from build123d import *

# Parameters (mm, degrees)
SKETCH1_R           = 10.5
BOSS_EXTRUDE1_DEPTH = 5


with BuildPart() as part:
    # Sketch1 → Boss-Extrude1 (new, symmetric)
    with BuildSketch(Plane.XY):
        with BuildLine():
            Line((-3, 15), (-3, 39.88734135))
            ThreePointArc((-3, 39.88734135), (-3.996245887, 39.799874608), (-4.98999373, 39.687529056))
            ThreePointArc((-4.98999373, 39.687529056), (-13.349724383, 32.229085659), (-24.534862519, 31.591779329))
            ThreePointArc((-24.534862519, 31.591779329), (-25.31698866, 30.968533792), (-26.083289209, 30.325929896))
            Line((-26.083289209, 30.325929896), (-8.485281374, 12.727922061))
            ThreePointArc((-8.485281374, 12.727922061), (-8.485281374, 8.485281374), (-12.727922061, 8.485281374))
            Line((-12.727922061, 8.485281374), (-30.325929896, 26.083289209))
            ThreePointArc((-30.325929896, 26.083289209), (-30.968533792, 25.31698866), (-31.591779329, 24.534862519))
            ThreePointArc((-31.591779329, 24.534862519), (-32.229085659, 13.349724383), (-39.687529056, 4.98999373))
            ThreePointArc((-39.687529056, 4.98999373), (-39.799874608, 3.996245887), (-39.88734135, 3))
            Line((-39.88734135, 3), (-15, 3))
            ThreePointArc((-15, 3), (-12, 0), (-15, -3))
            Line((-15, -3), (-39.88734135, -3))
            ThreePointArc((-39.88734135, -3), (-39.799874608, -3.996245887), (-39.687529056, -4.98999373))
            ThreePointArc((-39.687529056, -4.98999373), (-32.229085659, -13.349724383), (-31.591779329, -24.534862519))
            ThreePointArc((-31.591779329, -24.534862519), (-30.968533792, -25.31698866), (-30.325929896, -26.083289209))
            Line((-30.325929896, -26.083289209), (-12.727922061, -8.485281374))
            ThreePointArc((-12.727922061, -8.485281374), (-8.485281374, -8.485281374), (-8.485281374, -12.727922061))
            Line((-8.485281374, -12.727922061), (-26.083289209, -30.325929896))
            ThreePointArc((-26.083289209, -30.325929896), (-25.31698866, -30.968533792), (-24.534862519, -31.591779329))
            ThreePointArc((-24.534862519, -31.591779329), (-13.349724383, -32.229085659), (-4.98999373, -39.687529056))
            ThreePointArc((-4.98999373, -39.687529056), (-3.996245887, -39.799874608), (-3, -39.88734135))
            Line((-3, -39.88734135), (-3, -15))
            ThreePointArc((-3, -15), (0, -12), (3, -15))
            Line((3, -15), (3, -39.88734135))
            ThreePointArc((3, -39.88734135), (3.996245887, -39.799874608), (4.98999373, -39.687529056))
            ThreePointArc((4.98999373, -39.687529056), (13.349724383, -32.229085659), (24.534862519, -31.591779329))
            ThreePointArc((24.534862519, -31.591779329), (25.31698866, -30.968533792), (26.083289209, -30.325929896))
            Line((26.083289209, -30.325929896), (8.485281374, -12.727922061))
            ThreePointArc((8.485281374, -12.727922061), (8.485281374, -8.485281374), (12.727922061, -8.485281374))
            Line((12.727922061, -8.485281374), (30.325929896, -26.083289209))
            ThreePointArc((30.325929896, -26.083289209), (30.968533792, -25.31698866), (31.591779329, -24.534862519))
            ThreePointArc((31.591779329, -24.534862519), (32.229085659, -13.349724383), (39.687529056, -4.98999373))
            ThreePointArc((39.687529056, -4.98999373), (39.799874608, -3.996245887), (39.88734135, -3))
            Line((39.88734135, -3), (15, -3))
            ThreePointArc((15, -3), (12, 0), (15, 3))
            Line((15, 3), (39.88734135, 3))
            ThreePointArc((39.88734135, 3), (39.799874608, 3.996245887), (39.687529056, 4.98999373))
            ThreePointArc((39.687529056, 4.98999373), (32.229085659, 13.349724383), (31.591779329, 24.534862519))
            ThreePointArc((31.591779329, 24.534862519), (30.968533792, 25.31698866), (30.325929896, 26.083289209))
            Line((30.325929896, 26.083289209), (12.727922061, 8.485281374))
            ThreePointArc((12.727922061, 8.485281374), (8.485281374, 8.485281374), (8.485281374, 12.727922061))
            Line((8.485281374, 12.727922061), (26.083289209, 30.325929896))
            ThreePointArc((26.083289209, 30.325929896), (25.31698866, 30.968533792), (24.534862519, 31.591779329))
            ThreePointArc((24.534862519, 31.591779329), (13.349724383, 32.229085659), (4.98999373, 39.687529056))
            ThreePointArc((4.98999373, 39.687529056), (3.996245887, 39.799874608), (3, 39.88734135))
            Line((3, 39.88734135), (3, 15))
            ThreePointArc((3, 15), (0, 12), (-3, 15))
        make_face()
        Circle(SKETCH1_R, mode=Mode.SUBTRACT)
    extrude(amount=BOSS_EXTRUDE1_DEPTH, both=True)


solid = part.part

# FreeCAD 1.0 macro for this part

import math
import FreeCAD as App
import Part
import Sketcher

doc = App.newDocument("Part")
params = doc.addObject("Spreadsheet::Sheet", "Params")
for row, (alias, value) in enumerate([
    ("sketch1_diameter", "21 mm"),
    ("sketch1_radius", "39.999999 mm"),
    ("sketch1_radius2", "17 mm"),
    ("sketch1_radius3", "3 mm"),
    ("pad1_length", "10 mm"),
], start=1):
    params.set(f"A{row}", alias)
    params.set(f"B{row}", "=" + value)
    params.setAlias(f"B{row}", alias)

body = doc.addObject("PartDesign::Body", "Body")

# Sketch on XY plane
sketch1 = body.newObject("Sketcher::SketchObject", "Sketch")
sketch1.AttachmentSupport = (doc.getObject("XY_Plane"), [""])
sketch1.MapMode = "FlatFace"
sketch1.addGeometry([
    Part.LineSegment(App.Vector(-3, 15, 0), App.Vector(-3, 39.9, 0)),  # 0
    Part.ArcOfCircle(Part.Circle(App.Vector(0, 0, 0), App.Vector(0, 0, 1), 40), math.radians(94.3), math.radians(97.17)),  # 1
    Part.ArcOfCircle(Part.Circle(App.Vector(-19.9, 47.9, 0), App.Vector(0, 0, 1), 17), math.radians(-106), math.radians(-29)),  # 2
    Part.ArcOfCircle(Part.Circle(App.Vector(0, 0, 0), App.Vector(0, 0, 1), 40), math.radians(127.83), math.radians(130.7)),  # 3
    Part.LineSegment(App.Vector(-26.1, 30.3, 0), App.Vector(-8.5, 12.7, 0)),  # 4
    Part.ArcOfCircle(Part.Circle(App.Vector(-10.6, 10.6, 0), App.Vector(0, 0, 1), 3), math.radians(-135), math.radians(45)),  # 5
    Part.LineSegment(App.Vector(-12.7, 8.5, 0), App.Vector(-30.3, 26.1, 0)),  # 6
    Part.ArcOfCircle(Part.Circle(App.Vector(0, 0, 0), App.Vector(0, 0, 1), 40), math.radians(139.3), math.radians(142.17)),  # 7
    Part.ArcOfCircle(Part.Circle(App.Vector(-47.9, 19.9, 0), App.Vector(0, 0, 1), 17), math.radians(-61), math.radians(16)),  # 8
    Part.ArcOfCircle(Part.Circle(App.Vector(0, 0, 0), App.Vector(0, 0, 1), 40), math.radians(172.83), math.radians(175.7)),  # 9
    Part.LineSegment(App.Vector(-39.9, 3, 0), App.Vector(-15, 3, 0)),  # 10
    Part.ArcOfCircle(Part.Circle(App.Vector(-15, 0, 0), App.Vector(0, 0, 1), 3), math.radians(-90), math.radians(90)),  # 11
    Part.LineSegment(App.Vector(-15, -3, 0), App.Vector(-39.9, -3, 0)),  # 12
    Part.ArcOfCircle(Part.Circle(App.Vector(0, 0, 0), App.Vector(0, 0, 1), 40), math.radians(-175.7), math.radians(-172.83)),  # 13
    Part.ArcOfCircle(Part.Circle(App.Vector(-47.9, -19.9, 0), App.Vector(0, 0, 1), 17), math.radians(-16), math.radians(61)),  # 14
    Part.ArcOfCircle(Part.Circle(App.Vector(0, 0, 0), App.Vector(0, 0, 1), 40), math.radians(-142.17), math.radians(-139.3)),  # 15
    Part.LineSegment(App.Vector(-30.3, -26.1, 0), App.Vector(-12.7, -8.5, 0)),  # 16
    Part.ArcOfCircle(Part.Circle(App.Vector(-10.6, -10.6, 0), App.Vector(0, 0, 1), 3), math.radians(-45), math.radians(135)),  # 17
    Part.LineSegment(App.Vector(-8.5, -12.7, 0), App.Vector(-26.1, -30.3, 0)),  # 18
    Part.ArcOfCircle(Part.Circle(App.Vector(0, 0, 0), App.Vector(0, 0, 1), 40), math.radians(-130.7), math.radians(-127.83)),  # 19
    Part.ArcOfCircle(Part.Circle(App.Vector(-19.9, -47.9, 0), App.Vector(0, 0, 1), 17), math.radians(29), math.radians(106)),  # 20
    Part.ArcOfCircle(Part.Circle(App.Vector(0, 0, 0), App.Vector(0, 0, 1), 40), math.radians(-97.17), math.radians(-94.3)),  # 21
    Part.LineSegment(App.Vector(-3, -39.9, 0), App.Vector(-3, -15, 0)),  # 22
    Part.ArcOfCircle(Part.Circle(App.Vector(0, -15, 0), App.Vector(0, 0, 1), 3), math.radians(0), math.radians(180)),  # 23
    Part.LineSegment(App.Vector(3, -15, 0), App.Vector(3, -39.9, 0)),  # 24
    Part.ArcOfCircle(Part.Circle(App.Vector(0, 0, 0), App.Vector(0, 0, 1), 40), math.radians(-85.7), math.radians(-82.83)),  # 25
    Part.ArcOfCircle(Part.Circle(App.Vector(19.9, -47.9, 0), App.Vector(0, 0, 1), 17), math.radians(74), math.radians(151)),  # 26
    Part.ArcOfCircle(Part.Circle(App.Vector(0, 0, 0), App.Vector(0, 0, 1), 40), math.radians(-52.17), math.radians(-49.3)),  # 27
    Part.LineSegment(App.Vector(26.1, -30.3, 0), App.Vector(8.5, -12.7, 0)),  # 28
    Part.ArcOfCircle(Part.Circle(App.Vector(10.6, -10.6, 0), App.Vector(0, 0, 1), 3), math.radians(45), math.radians(225)),  # 29
    Part.LineSegment(App.Vector(12.7, -8.5, 0), App.Vector(30.3, -26.1, 0)),  # 30
    Part.ArcOfCircle(Part.Circle(App.Vector(0, 0, 0), App.Vector(0, 0, 1), 40), math.radians(-40.7), math.radians(-37.83)),  # 31
    Part.ArcOfCircle(Part.Circle(App.Vector(47.9, -19.9, 0), App.Vector(0, 0, 1), 17), math.radians(119), math.radians(196)),  # 32
    Part.ArcOfCircle(Part.Circle(App.Vector(0, 0, 0), App.Vector(0, 0, 1), 40), math.radians(-7.17), math.radians(-4.3)),  # 33
    Part.LineSegment(App.Vector(39.9, -3, 0), App.Vector(15, -3, 0)),  # 34
    Part.ArcOfCircle(Part.Circle(App.Vector(15, 0, 0), App.Vector(0, 0, 1), 3), math.radians(90), math.radians(270)),  # 35
    Part.LineSegment(App.Vector(15, 3, 0), App.Vector(39.9, 3, 0)),  # 36
    Part.ArcOfCircle(Part.Circle(App.Vector(0, 0, 0), App.Vector(0, 0, 1), 40), math.radians(4.3), math.radians(7.17)),  # 37
    Part.ArcOfCircle(Part.Circle(App.Vector(47.9, 19.9, 0), App.Vector(0, 0, 1), 17), math.radians(164), math.radians(241)),  # 38
    Part.ArcOfCircle(Part.Circle(App.Vector(0, 0, 0), App.Vector(0, 0, 1), 40), math.radians(37.83), math.radians(40.7)),  # 39
    Part.LineSegment(App.Vector(30.3, 26.1, 0), App.Vector(12.7, 8.5, 0)),  # 40
    Part.ArcOfCircle(Part.Circle(App.Vector(10.6, 10.6, 0), App.Vector(0, 0, 1), 3), math.radians(135), math.radians(315)),  # 41
    Part.LineSegment(App.Vector(8.5, 12.7, 0), App.Vector(26.1, 30.3, 0)),  # 42
    Part.ArcOfCircle(Part.Circle(App.Vector(0, 0, 0), App.Vector(0, 0, 1), 40), math.radians(49.3), math.radians(52.17)),  # 43
    Part.ArcOfCircle(Part.Circle(App.Vector(19.9, 47.9, 0), App.Vector(0, 0, 1), 17), math.radians(-151), math.radians(-74)),  # 44
    Part.ArcOfCircle(Part.Circle(App.Vector(0, 0, 0), App.Vector(0, 0, 1), 40), math.radians(82.83), math.radians(85.7)),  # 45
    Part.LineSegment(App.Vector(3, 39.9, 0), App.Vector(3, 15, 0)),  # 46
    Part.ArcOfCircle(Part.Circle(App.Vector(0, 15, 0), App.Vector(0, 0, 1), 3), math.radians(180), math.radians(360)),  # 47
    Part.Circle(App.Vector(0, 0, 0), App.Vector(0, 0, 1), 10.5),  # 48
], False)
sketch1.addConstraint([
    Sketcher.Constraint("Coincident", 0, 2, 1, 1),
    Sketcher.Constraint("Coincident", 1, 2, 2, 2),
    Sketcher.Constraint("Coincident", 2, 1, 3, 1),
    Sketcher.Constraint("Coincident", 3, 2, 4, 1),
    Sketcher.Constraint("Tangent", 4, 2, 5, 2),
    Sketcher.Constraint("Tangent", 5, 1, 6, 1),
    Sketcher.Constraint("Coincident", 6, 2, 7, 1),
    Sketcher.Constraint("Coincident", 7, 2, 8, 2),
    Sketcher.Constraint("Coincident", 8, 1, 9, 1),
    Sketcher.Constraint("Coincident", 9, 2, 10, 1),
    Sketcher.Constraint("Tangent", 10, 2, 11, 2),
    Sketcher.Constraint("Tangent", 11, 1, 12, 1),
    Sketcher.Constraint("Coincident", 12, 2, 13, 1),
    Sketcher.Constraint("Coincident", 13, 2, 14, 2),
    Sketcher.Constraint("Coincident", 14, 1, 15, 1),
    Sketcher.Constraint("Coincident", 15, 2, 16, 1),
    Sketcher.Constraint("Tangent", 16, 2, 17, 2),
    Sketcher.Constraint("Tangent", 17, 1, 18, 1),
    Sketcher.Constraint("Coincident", 18, 2, 19, 1),
    Sketcher.Constraint("Coincident", 19, 2, 20, 2),
    Sketcher.Constraint("Coincident", 20, 1, 21, 1),
    Sketcher.Constraint("Coincident", 21, 2, 22, 1),
    Sketcher.Constraint("Tangent", 22, 2, 23, 2),
    Sketcher.Constraint("Tangent", 23, 1, 24, 1),
    Sketcher.Constraint("Coincident", 24, 2, 25, 1),
    Sketcher.Constraint("Coincident", 25, 2, 26, 2),
    Sketcher.Constraint("Coincident", 26, 1, 27, 1),
    Sketcher.Constraint("Coincident", 27, 2, 28, 1),
    Sketcher.Constraint("Tangent", 28, 2, 29, 2),
    Sketcher.Constraint("Tangent", 29, 1, 30, 1),
    Sketcher.Constraint("Coincident", 30, 2, 31, 1),
    Sketcher.Constraint("Coincident", 31, 2, 32, 2),
    Sketcher.Constraint("Coincident", 32, 1, 33, 1),
    Sketcher.Constraint("Coincident", 33, 2, 34, 1),
    Sketcher.Constraint("Tangent", 34, 2, 35, 2),
    Sketcher.Constraint("Tangent", 35, 1, 36, 1),
    Sketcher.Constraint("Coincident", 36, 2, 37, 1),
    Sketcher.Constraint("Coincident", 37, 2, 38, 2),
    Sketcher.Constraint("Coincident", 38, 1, 39, 1),
    Sketcher.Constraint("Coincident", 39, 2, 40, 1),
    Sketcher.Constraint("Tangent", 40, 2, 41, 2),
    Sketcher.Constraint("Tangent", 41, 1, 42, 1),
    Sketcher.Constraint("Coincident", 42, 2, 43, 1),
    Sketcher.Constraint("Coincident", 43, 2, 44, 2),
    Sketcher.Constraint("Coincident", 44, 1, 45, 1),
    Sketcher.Constraint("Coincident", 45, 2, 46, 1),
    Sketcher.Constraint("Tangent", 46, 2, 47, 2),
    Sketcher.Constraint("Tangent", 47, 1, 0, 1),
    Sketcher.Constraint("Vertical", 0),
    Sketcher.Constraint("Horizontal", 10),
    Sketcher.Constraint("Horizontal", 12),
    Sketcher.Constraint("Vertical", 22),
    Sketcher.Constraint("Vertical", 24),
    Sketcher.Constraint("Horizontal", 34),
    Sketcher.Constraint("Horizontal", 36),
    Sketcher.Constraint("Vertical", 46),
    Sketcher.Constraint("Coincident", 1, 3, -1, 1),
    Sketcher.Constraint("Coincident", 3, 3, -1, 1),
    Sketcher.Constraint("Coincident", 7, 3, -1, 1),
    Sketcher.Constraint("Coincident", 9, 3, -1, 1),
    Sketcher.Constraint("Coincident", 13, 3, -1, 1),
    Sketcher.Constraint("Coincident", 15, 3, -1, 1),
    Sketcher.Constraint("Coincident", 19, 3, -1, 1),
    Sketcher.Constraint("Coincident", 21, 3, -1, 1),
    Sketcher.Constraint("Coincident", 25, 3, -1, 1),
    Sketcher.Constraint("Coincident", 27, 3, -1, 1),
    Sketcher.Constraint("Coincident", 31, 3, -1, 1),
    Sketcher.Constraint("Coincident", 33, 3, -1, 1),
    Sketcher.Constraint("Coincident", 37, 3, -1, 1),
    Sketcher.Constraint("Coincident", 39, 3, -1, 1),
    Sketcher.Constraint("Coincident", 43, 3, -1, 1),
    Sketcher.Constraint("Coincident", 45, 3, -1, 1),
    Sketcher.Constraint("Coincident", 48, 3, -1, 1),
    Sketcher.Constraint("Equal", 1, 3),
    Sketcher.Constraint("Equal", 3, 7),
    Sketcher.Constraint("Equal", 2, 8),
    Sketcher.Constraint("Equal", 7, 9),
    Sketcher.Constraint("Equal", 5, 11),
    Sketcher.Constraint("Equal", 9, 13),
    Sketcher.Constraint("Equal", 8, 14),
    Sketcher.Constraint("Equal", 13, 15),
    Sketcher.Constraint("Equal", 11, 17),
    Sketcher.Constraint("Equal", 15, 19),
    Sketcher.Constraint("Equal", 14, 20),
    Sketcher.Constraint("Equal", 19, 21),
    Sketcher.Constraint("Equal", 17, 23),
    Sketcher.Constraint("Equal", 21, 25),
    Sketcher.Constraint("Equal", 20, 26),
    Sketcher.Constraint("Equal", 25, 27),
    Sketcher.Constraint("Equal", 23, 29),
    Sketcher.Constraint("Equal", 27, 31),
    Sketcher.Constraint("Equal", 26, 32),
    Sketcher.Constraint("Equal", 31, 33),
    Sketcher.Constraint("Equal", 29, 35),
    Sketcher.Constraint("Equal", 33, 37),
    Sketcher.Constraint("Equal", 32, 38),
    Sketcher.Constraint("Equal", 37, 39),
    Sketcher.Constraint("Equal", 35, 41),
    Sketcher.Constraint("Equal", 39, 43),
    Sketcher.Constraint("Equal", 38, 44),
    Sketcher.Constraint("Equal", 43, 45),
    Sketcher.Constraint("Equal", 41, 47),
    Sketcher.Constraint("Symmetric", 2, 3, 26, 3, -1, 1),
    Sketcher.Constraint("Symmetric", 5, 3, 29, 3, -1, 1),
    Sketcher.Constraint("Symmetric", 8, 3, 32, 3, -1, 1),
    Sketcher.Constraint("Symmetric", 11, 3, 35, 3, -1, 1),
    Sketcher.Constraint("Symmetric", 14, 3, 38, 3, -1, 1),
    Sketcher.Constraint("Symmetric", 17, 3, 41, 3, -1, 1),
    Sketcher.Constraint("Symmetric", 20, 3, 44, 3, -1, 1),
    Sketcher.Constraint("Symmetric", 23, 3, 47, 3, -1, 1),
    Sketcher.Constraint("Symmetric", 20, 3, 26, 3, -2),
    Sketcher.Constraint("Symmetric", 17, 3, 29, 3, -2),
    Sketcher.Constraint("Symmetric", 14, 3, 32, 3, -2),
    Sketcher.Constraint("PointOnObject", 11, 3, -1),
    Sketcher.Constraint("PointOnObject", 23, 3, -2),
    Sketcher.Constraint("Parallel", 4, 6),
    Sketcher.Constraint("Perpendicular", 6, 16),
    Sketcher.Constraint("Parallel", 16, 18),
    Sketcher.Constraint("Perpendicular", 18, 28),
    Sketcher.Constraint("Parallel", 28, 30),
    Sketcher.Constraint("Perpendicular", 30, 40),
    Sketcher.Constraint("Parallel", 40, 42),
    Sketcher.Constraint("Horizontal", 18, 2, 27, 2),
    Sketcher.Constraint("Equal", 36, 0),
    Sketcher.Constraint("Equal", 4, 6),
    Sketcher.Constraint("Diameter", 48, 21.0),
    Sketcher.Constraint("Radius", 1, 39.999999),
    Sketcher.Constraint("Radius", 2, 17.0),
    Sketcher.Constraint("Radius", 5, 3.0),
    Sketcher.Constraint("DistanceX", 11, 3, -1, 1, 15.0),
    Sketcher.Constraint("DistanceX", 5, 3, -1, 1, 10.606602),
    Sketcher.Constraint("DistanceY", -1, 1, 1, 2, 39.687529),
    Sketcher.Constraint("DistanceY", -1, 1, 2, 1, 31.591779),
    Sketcher.Constraint("DistanceX", 7, 2, -1, 1, 31.591779),
    Sketcher.Constraint("DistanceX", 8, 1, -1, 1, 39.687529),
])
sketch1.setExpression("Constraints[125]", "Params.sketch1_diameter")
sketch1.setExpression("Constraints[126]", "Params.sketch1_radius")
sketch1.setExpression("Constraints[127]", "Params.sketch1_radius2")
sketch1.setExpression("Constraints[128]", "Params.sketch1_radius3")
pad1 = body.newObject("PartDesign::Pad", "Pad")
pad1.Profile = sketch1
pad1.setExpression("Length", "Params.pad1_length")
pad1.Midplane = True

doc.recompute()
